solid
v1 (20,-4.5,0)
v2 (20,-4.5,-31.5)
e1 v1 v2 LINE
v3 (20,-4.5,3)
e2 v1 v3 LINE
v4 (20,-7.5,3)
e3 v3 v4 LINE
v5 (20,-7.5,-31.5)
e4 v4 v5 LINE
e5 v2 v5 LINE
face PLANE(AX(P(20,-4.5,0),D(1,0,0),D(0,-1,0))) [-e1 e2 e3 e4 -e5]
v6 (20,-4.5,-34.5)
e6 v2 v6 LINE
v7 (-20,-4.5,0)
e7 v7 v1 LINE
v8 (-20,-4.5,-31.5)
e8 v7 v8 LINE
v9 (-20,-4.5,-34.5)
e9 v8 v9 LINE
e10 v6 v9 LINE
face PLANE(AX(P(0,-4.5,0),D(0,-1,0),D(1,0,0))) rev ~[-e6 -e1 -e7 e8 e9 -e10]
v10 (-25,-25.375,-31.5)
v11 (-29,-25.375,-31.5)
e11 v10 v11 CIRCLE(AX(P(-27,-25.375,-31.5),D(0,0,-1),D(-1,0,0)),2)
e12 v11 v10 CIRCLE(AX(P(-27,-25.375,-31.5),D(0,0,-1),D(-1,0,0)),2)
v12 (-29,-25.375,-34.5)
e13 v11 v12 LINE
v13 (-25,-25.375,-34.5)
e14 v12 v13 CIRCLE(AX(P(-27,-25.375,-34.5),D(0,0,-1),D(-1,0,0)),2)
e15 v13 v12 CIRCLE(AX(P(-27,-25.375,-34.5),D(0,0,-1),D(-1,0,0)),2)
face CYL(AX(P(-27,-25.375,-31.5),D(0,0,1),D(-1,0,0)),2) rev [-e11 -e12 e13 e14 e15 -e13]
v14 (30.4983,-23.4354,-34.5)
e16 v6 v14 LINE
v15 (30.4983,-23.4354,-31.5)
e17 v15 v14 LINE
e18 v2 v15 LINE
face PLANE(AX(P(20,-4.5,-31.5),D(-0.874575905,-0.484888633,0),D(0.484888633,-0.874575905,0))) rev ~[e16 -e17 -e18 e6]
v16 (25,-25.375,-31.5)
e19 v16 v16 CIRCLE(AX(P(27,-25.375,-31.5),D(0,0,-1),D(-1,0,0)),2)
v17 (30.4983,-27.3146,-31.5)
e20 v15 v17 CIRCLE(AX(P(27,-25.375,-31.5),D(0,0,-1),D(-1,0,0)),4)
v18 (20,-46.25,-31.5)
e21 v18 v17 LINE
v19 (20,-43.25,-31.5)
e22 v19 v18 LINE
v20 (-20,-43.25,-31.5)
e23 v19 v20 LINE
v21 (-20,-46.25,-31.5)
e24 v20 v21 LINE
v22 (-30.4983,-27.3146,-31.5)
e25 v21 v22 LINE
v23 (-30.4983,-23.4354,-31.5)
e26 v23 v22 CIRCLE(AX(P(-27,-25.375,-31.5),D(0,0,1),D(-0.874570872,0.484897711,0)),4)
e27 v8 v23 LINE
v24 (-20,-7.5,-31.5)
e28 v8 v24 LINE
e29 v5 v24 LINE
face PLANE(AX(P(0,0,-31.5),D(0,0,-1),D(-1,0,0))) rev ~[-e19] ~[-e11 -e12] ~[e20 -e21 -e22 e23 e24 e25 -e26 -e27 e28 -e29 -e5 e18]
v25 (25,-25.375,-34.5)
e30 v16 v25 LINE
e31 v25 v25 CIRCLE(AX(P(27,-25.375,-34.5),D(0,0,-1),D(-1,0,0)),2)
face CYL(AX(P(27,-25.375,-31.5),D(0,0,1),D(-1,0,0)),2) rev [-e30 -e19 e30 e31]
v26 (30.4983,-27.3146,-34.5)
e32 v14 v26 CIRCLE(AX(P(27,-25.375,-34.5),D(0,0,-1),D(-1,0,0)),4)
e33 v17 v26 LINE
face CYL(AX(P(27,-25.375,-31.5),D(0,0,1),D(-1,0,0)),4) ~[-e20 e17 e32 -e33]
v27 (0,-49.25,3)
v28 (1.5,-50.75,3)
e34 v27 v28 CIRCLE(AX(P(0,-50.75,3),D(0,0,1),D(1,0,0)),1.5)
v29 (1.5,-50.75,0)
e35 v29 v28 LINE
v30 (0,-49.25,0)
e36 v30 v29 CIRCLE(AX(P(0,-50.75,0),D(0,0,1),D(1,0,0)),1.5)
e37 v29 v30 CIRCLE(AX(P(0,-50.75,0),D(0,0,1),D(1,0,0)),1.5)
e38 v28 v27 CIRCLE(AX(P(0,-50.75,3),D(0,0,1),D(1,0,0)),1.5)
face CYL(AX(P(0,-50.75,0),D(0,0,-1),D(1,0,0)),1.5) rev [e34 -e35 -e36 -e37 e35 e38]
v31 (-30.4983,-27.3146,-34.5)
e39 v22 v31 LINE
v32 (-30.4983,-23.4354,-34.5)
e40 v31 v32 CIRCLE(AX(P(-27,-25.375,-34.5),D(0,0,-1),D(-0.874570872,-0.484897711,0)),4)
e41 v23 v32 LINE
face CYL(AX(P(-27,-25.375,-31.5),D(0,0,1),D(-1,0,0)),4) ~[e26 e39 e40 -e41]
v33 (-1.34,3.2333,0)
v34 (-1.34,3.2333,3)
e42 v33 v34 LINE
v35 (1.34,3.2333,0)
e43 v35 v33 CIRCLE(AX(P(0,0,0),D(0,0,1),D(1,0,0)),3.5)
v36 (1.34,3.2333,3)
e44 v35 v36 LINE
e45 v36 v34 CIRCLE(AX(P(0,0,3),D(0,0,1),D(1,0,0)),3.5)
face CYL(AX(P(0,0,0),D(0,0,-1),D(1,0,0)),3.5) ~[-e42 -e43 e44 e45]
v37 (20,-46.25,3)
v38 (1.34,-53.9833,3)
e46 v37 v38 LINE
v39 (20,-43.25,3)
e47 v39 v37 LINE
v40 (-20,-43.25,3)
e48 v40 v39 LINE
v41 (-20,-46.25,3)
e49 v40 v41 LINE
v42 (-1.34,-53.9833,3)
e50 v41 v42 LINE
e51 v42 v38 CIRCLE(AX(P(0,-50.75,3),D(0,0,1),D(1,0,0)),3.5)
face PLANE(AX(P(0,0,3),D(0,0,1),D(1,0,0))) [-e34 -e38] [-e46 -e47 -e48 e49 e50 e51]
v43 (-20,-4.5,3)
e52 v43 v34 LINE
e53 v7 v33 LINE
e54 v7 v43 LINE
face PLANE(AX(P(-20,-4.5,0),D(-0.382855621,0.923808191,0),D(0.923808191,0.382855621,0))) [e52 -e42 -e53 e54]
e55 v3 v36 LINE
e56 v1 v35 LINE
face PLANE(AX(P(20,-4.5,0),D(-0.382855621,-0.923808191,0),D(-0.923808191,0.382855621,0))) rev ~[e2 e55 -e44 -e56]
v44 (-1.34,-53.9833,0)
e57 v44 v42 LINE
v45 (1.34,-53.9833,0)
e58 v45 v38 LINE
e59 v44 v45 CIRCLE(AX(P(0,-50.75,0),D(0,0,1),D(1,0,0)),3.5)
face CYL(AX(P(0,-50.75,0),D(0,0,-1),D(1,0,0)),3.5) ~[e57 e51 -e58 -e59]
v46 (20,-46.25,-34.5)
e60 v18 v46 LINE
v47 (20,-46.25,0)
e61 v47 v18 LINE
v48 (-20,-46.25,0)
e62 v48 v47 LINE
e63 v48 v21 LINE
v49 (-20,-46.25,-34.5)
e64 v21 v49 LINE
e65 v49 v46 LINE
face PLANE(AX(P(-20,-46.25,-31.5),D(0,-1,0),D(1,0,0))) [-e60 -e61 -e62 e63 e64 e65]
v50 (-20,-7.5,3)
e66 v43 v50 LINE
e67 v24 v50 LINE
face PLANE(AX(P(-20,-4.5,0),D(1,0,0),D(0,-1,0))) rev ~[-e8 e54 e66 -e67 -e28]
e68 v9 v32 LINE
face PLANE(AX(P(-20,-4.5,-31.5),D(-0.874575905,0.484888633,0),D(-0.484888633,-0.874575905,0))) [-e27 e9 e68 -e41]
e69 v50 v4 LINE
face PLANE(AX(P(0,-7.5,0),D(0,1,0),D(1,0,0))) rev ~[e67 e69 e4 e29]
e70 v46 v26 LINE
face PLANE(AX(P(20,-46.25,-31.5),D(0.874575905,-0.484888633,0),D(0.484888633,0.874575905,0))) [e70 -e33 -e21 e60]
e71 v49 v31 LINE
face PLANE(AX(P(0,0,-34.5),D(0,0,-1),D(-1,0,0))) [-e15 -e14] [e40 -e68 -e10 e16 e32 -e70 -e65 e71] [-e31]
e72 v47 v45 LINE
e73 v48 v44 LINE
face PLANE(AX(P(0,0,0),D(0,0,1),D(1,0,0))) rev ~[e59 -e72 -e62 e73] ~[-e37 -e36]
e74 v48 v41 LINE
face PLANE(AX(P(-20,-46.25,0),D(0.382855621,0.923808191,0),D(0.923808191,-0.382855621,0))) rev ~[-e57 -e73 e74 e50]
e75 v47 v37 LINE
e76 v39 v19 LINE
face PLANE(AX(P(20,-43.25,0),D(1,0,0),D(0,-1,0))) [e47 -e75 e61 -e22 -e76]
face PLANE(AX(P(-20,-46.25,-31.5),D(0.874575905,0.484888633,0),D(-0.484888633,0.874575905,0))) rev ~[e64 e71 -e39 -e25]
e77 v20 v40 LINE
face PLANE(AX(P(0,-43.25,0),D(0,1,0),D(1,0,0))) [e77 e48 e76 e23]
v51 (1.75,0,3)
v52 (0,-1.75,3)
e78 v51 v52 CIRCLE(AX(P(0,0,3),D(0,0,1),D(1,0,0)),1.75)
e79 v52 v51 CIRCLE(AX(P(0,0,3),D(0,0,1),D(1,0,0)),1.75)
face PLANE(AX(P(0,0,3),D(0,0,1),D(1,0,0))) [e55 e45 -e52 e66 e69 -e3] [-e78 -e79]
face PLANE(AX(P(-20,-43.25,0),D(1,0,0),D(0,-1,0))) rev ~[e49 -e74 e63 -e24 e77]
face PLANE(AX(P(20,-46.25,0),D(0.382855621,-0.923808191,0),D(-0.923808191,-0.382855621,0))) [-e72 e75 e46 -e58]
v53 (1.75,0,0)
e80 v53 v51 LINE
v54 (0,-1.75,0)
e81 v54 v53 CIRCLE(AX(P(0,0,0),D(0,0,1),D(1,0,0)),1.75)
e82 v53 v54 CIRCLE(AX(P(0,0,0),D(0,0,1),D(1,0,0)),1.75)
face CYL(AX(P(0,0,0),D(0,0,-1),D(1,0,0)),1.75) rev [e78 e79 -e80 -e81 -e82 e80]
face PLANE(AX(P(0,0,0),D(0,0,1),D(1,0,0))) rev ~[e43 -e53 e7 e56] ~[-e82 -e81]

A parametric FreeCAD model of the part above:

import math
import FreeCAD as App
import Part
import Sketcher
from FreeCAD import Vector


def add_polygon(sketch, points):
    """Adds a closed chain of lines whose ends are joined by coincident constraints."""
    first, n = sketch.GeometryCount, len(points)
    for a, b in zip(points, points[1:] + points[:1]):
        sketch.addGeometry(Part.LineSegment(App.Vector(*a, 0), App.Vector(*b, 0)), False)
    for i in range(n):
        sketch.addConstraint(Sketcher.Constraint("Coincident", first + i, 2, first + (i + 1) % n, 1))

doc = App.newDocument("Part")
params = doc.addObject("Spreadsheet::Sheet", "Params")
for row, (alias, value) in enumerate([
    ("sketch1_diameter", "3 mm"),
    ("sketch1_diameter2", "3.5 mm"),
    ("sketch1_radius", "3.5 mm"),
    ("sketch1_width", "40 mm"),
    ("sketch1_height", "3 mm"),
    ("pad1_length", "3 mm"),
    ("sketch2_width", "40 mm"),
    ("sketch2_height", "3 mm"),
    ("pad2_length", "31.5 mm"),
    ("sketch3_diameter", "4 mm"),
    ("sketch3_radius", "4 mm"),
    ("sketch3_width", "40 mm"),
    ("pad3_length", "3 mm"),
], start=1):
    params.set(f"A{row}", alias)
    params.set(f"B{row}", "=" + value)
    params.setAlias(f"B{row}", alias)

body = doc.addObject("PartDesign::Body", "Body")
body.AllowCompound = True

# Sketch on XY plane
sketch1 = doc.addObject("Sketcher::SketchObject", "Sketch")
body.addObject(sketch1)
sketch1.AttachmentSupport = (doc.XY_Plane, [""])
sketch1.MapMode = "FlatFace"
sketch1.addGeometry([
    Part.ArcOfCircle(Part.Circle(Vector(0, 0, 0), Vector(0, 0, 1), 3.5), math.radians(67), math.radians(113)),  # 0
    Part.LineSegment(Vector(-1.3, 3.2, 0), Vector(-20, -4.5, 0)),  # 1
    Part.LineSegment(Vector(-20, -4.5, 0), Vector(-20, -7.5, 0)),  # 2
    Part.LineSegment(Vector(-20, -7.5, 0), Vector(20, -7.5, 0)),  # 3
    Part.LineSegment(Vector(20, -7.5, 0), Vector(20, -4.5, 0)),  # 4
    Part.LineSegment(Vector(20, -4.5, 0), Vector(1.3, 3.2, 0)),  # 5
    Part.Circle(Vector(0, 0, 0), Vector(0, 0, 1), 1.8),  # 6
    Part.LineSegment(Vector(20, -43.2, 0), Vector(-20, -43.2, 0)),  # 7
    Part.LineSegment(Vector(-20, -43.2, 0), Vector(-20, -46.2, 0)),  # 8
    Part.LineSegment(Vector(-20, -46.2, 0), Vector(-1.3, -54, 0)),  # 9
    Part.ArcOfCircle(Part.Circle(Vector(0, -50.8, 0), Vector(0, 0, 1), 3.5), math.radians(-113), math.radians(-67)),  # 10
    Part.LineSegment(Vector(1.3, -54, 0), Vector(20, -46.2, 0)),  # 11
    Part.LineSegment(Vector(20, -46.2, 0), Vector(20, -43.2, 0)),  # 12
    Part.Circle(Vector(0, -50.8, 0), Vector(0, 0, 1), 1.5),  # 13
], False)
sketch1.addConstraint([
    Sketcher.Constraint("Tangent", 0, 2, 1, 1),
    Sketcher.Constraint("Coincident", 1, 2, 2, 1),
    Sketcher.Constraint("Coincident", 2, 2, 3, 1),
    Sketcher.Constraint("Coincident", 3, 2, 4, 1),
    Sketcher.Constraint("Coincident", 4, 2, 5, 1),
    Sketcher.Constraint("Tangent", 5, 2, 0, 1),
    Sketcher.Constraint("Coincident", 7, 2, 8, 1),
    Sketcher.Constraint("Coincident", 8, 2, 9, 1),
    Sketcher.Constraint("Tangent", 9, 2, 10, 1),
    Sketcher.Constraint("Tangent", 10, 2, 11, 1),
    Sketcher.Constraint("Coincident", 11, 2, 12, 1),
    Sketcher.Constraint("Coincident", 12, 2, 7, 1),
    Sketcher.Constraint("Vertical", 2),
    Sketcher.Constraint("Horizontal", 3),
    Sketcher.Constraint("Vertical", 4),
    Sketcher.Constraint("Horizontal", 7),
    Sketcher.Constraint("Vertical", 8),
    Sketcher.Constraint("Vertical", 12),
    Sketcher.Constraint("Coincident", 0, 3, -1, 1),
    Sketcher.Constraint("Coincident", 6, 3, -1, 1),
    Sketcher.Constraint("Coincident", 13, 3, 10, 3),
    Sketcher.Constraint("Equal", 0, 10),
    Sketcher.Constraint("Symmetric", 1, 2, 4, 2, -2),
    Sketcher.Constraint("Symmetric", 9, 2, 10, 2, -2),
    Sketcher.Constraint("Parallel", 5, 9),
    Sketcher.Constraint("Horizontal", 8, 2, 11, 2),
    Sketcher.Constraint("Vertical", 2, 2, 7, 2),
    Sketcher.Constraint("Equal", 4, 8),
    Sketcher.Constraint("Diameter", 13, 3.0),
    Sketcher.Constraint("Diameter", 6, 3.5),
    Sketcher.Constraint("Radius", 0, 3.5),
    Sketcher.Constraint("DistanceX", 3, 1, 3, 2, 40.0),
    Sketcher.Constraint("DistanceY", 2, 2, 2, 1, 3.0),
    Sketcher.Constraint("DistanceY", 2, 2, -1, 1, 7.5),
    Sketcher.Constraint("DistanceY", 10, 3, -1, 1, 50.75),
])
sketch1.setExpression("Constraints[28]", "Params.sketch1_diameter")
sketch1.setExpression("Constraints[29]", "Params.sketch1_diameter2")
sketch1.setExpression("Constraints[30]", "Params.sketch1_radius")
sketch1.setExpression("Constraints[31]", "Params.sketch1_width")
sketch1.setExpression("Constraints[32]", "Params.sketch1_height")
pad1 = doc.addObject("PartDesign::Pad", "Pad")
body.addObject(pad1)
pad1.Profile = sketch1
pad1.setExpression("Length", "Params.pad1_length")

# Sketch on XY plane
sketch2 = doc.addObject("Sketcher::SketchObject", "Sketch001")
body.addObject(sketch2)
sketch2.AttachmentSupport = (doc.XY_Plane, [""])
sketch2.MapMode = "FlatFace"
add_polygon(sketch2, [(20, -4.5), (-20, -4.5), (-20, -7.5), (20, -7.5)])  # lines 0-3
add_polygon(sketch2, [(20, -43.2), (-20, -43.2), (-20, -46.2), (20, -46.2)])  # lines 4-7
sketch2.addConstraint([
    Sketcher.Constraint("Horizontal", 0),
    Sketcher.Constraint("Vertical", 1),
    Sketcher.Constraint("Horizontal", 2),
    Sketcher.Constraint("Vertical", 3),
    Sketcher.Constraint("Horizontal", 4),
    Sketcher.Constraint("Vertical", 5),
    Sketcher.Constraint("Horizontal", 6),
    Sketcher.Constraint("Vertical", 7),
    Sketcher.Constraint("Vertical", 1, 2, 4, 2),
    Sketcher.Constraint("Vertical", 3, 2, 6, 2),
    Sketcher.Constraint("Equal", 3, 5),
    Sketcher.Constraint("DistanceX", 0, 2, 0, 1, 40.0),
    Sketcher.Constraint("DistanceY", 1, 2, 1, 1, 3.0),
    Sketcher.Constraint("DistanceY", 1, 2, -1, 1, 7.5),
    Sketcher.Constraint("DistanceX", 0, 2, -1, 1, 20.0),
    Sketcher.Constraint("DistanceY", 4, 2, -1, 1, 43.25),
])
sketch2.setExpression("Constraints[19]", "Params.sketch2_width")
sketch2.setExpression("Constraints[20]", "Params.sketch2_height")
pad2 = doc.addObject("PartDesign::Pad", "Pad001")
body.addObject(pad2)
pad2.Profile = sketch2
pad2.setExpression("Length", "Params.pad2_length")
pad2.Reversed = True

# Sketch on XY plane
sketch3 = doc.addObject("Sketcher::SketchObject", "Sketch002")
body.addObject(sketch3)
sketch3.AttachmentSupport = (doc.XY_Plane, [""])
sketch3.MapMode = "FlatFace"
sketch3.AttachmentOffset = App.Placement(Vector(0, 0, -31.5), App.Rotation())
sketch3.addGeometry([
    Part.LineSegment(Vector(20, -4.5, 0), Vector(30.5, -23.4, 0)),  # 0
    Part.ArcOfCircle(Part.Circle(Vector(27, -25.4, 0), Vector(0, 0, 1), 4), math.radians(-29), math.radians(29)),  # 1
    Part.LineSegment(Vector(30.5, -27.3, 0), Vector(20, -46.2, 0)),  # 2
    Part.LineSegment(Vector(20, -46.2, 0), Vector(-20, -46.2, 0)),  # 3
    Part.LineSegment(Vector(-20, -46.2, 0), Vector(-30.5, -27.3, 0)),  # 4
    Part.ArcOfCircle(Part.Circle(Vector(-27, -25.4, 0), Vector(0, 0, 1), 4), math.radians(151), math.radians(209)),  # 5
    Part.LineSegment(Vector(-30.5, -23.4, 0), Vector(-20, -4.5, 0)),  # 6
    Part.LineSegment(Vector(-20, -4.5, 0), Vector(20, -4.5, 0)),  # 7
    Part.Circle(Vector(27, -25.4, 0), Vector(0, 0, 1), 2),  # 8
    Part.Circle(Vector(-27, -25.4, 0), Vector(0, 0, 1), 2),  # 9
], False)
sketch3.addConstraint([
    Sketcher.Constraint("Tangent", 0, 2, 1, 2),
    Sketcher.Constraint("Tangent", 1, 1, 2, 1),
    Sketcher.Constraint("Coincident", 2, 2, 3, 1),
    Sketcher.Constraint("Coincident", 3, 2, 4, 1),
    Sketcher.Constraint("Tangent", 4, 2, 5, 2),
    Sketcher.Constraint("Tangent", 5, 1, 6, 1),
    Sketcher.Constraint("Coincident", 6, 2, 7, 1),
    Sketcher.Constraint("Coincident", 7, 2, 0, 1),
    Sketcher.Constraint("Horizontal", 3),
    Sketcher.Constraint("Horizontal", 7),
    Sketcher.Constraint("Coincident", 8, 3, 1, 3),
    Sketcher.Constraint("Coincident", 9, 3, 5, 3),
    Sketcher.Constraint("Equal", 1, 5),
    Sketcher.Constraint("Equal", 8, 9),
    Sketcher.Constraint("Symmetric", 1, 3, 5, 3, -2),
    Sketcher.Constraint("Parallel", 0, 4),
    Sketcher.Constraint("Parallel", 2, 6),
    Sketcher.Constraint("Horizontal", 1, 1, 4, 2),
    Sketcher.Constraint("Vertical", 3, 2, 6, 2),
    Sketcher.Constraint("Diameter", 8, 4.0),
    Sketcher.Constraint("Radius", 1, 4.0),
    Sketcher.Constraint("DistanceX", 5, 3, 1, 3, 54.0),
    Sketcher.Constraint("DistanceX", 3, 2, 3, 1, 40.0),
    Sketcher.Constraint("DistanceY", 6, 2, -1, 1, 4.5),
    Sketcher.Constraint("DistanceY", 2, 2, -1, 1, 46.25),
])
sketch3.setExpression("Constraints[19]", "Params.sketch3_diameter")
sketch3.setExpression("Constraints[20]", "Params.sketch3_radius")
sketch3.setExpression("Constraints[22]", "Params.sketch3_width")
pad3 = doc.addObject("PartDesign::Pad", "Pad002")
body.addObject(pad3)
pad3.Profile = sketch3
pad3.setExpression("Length", "Params.pad3_length")
pad3.Reversed = True

doc.recompute()
